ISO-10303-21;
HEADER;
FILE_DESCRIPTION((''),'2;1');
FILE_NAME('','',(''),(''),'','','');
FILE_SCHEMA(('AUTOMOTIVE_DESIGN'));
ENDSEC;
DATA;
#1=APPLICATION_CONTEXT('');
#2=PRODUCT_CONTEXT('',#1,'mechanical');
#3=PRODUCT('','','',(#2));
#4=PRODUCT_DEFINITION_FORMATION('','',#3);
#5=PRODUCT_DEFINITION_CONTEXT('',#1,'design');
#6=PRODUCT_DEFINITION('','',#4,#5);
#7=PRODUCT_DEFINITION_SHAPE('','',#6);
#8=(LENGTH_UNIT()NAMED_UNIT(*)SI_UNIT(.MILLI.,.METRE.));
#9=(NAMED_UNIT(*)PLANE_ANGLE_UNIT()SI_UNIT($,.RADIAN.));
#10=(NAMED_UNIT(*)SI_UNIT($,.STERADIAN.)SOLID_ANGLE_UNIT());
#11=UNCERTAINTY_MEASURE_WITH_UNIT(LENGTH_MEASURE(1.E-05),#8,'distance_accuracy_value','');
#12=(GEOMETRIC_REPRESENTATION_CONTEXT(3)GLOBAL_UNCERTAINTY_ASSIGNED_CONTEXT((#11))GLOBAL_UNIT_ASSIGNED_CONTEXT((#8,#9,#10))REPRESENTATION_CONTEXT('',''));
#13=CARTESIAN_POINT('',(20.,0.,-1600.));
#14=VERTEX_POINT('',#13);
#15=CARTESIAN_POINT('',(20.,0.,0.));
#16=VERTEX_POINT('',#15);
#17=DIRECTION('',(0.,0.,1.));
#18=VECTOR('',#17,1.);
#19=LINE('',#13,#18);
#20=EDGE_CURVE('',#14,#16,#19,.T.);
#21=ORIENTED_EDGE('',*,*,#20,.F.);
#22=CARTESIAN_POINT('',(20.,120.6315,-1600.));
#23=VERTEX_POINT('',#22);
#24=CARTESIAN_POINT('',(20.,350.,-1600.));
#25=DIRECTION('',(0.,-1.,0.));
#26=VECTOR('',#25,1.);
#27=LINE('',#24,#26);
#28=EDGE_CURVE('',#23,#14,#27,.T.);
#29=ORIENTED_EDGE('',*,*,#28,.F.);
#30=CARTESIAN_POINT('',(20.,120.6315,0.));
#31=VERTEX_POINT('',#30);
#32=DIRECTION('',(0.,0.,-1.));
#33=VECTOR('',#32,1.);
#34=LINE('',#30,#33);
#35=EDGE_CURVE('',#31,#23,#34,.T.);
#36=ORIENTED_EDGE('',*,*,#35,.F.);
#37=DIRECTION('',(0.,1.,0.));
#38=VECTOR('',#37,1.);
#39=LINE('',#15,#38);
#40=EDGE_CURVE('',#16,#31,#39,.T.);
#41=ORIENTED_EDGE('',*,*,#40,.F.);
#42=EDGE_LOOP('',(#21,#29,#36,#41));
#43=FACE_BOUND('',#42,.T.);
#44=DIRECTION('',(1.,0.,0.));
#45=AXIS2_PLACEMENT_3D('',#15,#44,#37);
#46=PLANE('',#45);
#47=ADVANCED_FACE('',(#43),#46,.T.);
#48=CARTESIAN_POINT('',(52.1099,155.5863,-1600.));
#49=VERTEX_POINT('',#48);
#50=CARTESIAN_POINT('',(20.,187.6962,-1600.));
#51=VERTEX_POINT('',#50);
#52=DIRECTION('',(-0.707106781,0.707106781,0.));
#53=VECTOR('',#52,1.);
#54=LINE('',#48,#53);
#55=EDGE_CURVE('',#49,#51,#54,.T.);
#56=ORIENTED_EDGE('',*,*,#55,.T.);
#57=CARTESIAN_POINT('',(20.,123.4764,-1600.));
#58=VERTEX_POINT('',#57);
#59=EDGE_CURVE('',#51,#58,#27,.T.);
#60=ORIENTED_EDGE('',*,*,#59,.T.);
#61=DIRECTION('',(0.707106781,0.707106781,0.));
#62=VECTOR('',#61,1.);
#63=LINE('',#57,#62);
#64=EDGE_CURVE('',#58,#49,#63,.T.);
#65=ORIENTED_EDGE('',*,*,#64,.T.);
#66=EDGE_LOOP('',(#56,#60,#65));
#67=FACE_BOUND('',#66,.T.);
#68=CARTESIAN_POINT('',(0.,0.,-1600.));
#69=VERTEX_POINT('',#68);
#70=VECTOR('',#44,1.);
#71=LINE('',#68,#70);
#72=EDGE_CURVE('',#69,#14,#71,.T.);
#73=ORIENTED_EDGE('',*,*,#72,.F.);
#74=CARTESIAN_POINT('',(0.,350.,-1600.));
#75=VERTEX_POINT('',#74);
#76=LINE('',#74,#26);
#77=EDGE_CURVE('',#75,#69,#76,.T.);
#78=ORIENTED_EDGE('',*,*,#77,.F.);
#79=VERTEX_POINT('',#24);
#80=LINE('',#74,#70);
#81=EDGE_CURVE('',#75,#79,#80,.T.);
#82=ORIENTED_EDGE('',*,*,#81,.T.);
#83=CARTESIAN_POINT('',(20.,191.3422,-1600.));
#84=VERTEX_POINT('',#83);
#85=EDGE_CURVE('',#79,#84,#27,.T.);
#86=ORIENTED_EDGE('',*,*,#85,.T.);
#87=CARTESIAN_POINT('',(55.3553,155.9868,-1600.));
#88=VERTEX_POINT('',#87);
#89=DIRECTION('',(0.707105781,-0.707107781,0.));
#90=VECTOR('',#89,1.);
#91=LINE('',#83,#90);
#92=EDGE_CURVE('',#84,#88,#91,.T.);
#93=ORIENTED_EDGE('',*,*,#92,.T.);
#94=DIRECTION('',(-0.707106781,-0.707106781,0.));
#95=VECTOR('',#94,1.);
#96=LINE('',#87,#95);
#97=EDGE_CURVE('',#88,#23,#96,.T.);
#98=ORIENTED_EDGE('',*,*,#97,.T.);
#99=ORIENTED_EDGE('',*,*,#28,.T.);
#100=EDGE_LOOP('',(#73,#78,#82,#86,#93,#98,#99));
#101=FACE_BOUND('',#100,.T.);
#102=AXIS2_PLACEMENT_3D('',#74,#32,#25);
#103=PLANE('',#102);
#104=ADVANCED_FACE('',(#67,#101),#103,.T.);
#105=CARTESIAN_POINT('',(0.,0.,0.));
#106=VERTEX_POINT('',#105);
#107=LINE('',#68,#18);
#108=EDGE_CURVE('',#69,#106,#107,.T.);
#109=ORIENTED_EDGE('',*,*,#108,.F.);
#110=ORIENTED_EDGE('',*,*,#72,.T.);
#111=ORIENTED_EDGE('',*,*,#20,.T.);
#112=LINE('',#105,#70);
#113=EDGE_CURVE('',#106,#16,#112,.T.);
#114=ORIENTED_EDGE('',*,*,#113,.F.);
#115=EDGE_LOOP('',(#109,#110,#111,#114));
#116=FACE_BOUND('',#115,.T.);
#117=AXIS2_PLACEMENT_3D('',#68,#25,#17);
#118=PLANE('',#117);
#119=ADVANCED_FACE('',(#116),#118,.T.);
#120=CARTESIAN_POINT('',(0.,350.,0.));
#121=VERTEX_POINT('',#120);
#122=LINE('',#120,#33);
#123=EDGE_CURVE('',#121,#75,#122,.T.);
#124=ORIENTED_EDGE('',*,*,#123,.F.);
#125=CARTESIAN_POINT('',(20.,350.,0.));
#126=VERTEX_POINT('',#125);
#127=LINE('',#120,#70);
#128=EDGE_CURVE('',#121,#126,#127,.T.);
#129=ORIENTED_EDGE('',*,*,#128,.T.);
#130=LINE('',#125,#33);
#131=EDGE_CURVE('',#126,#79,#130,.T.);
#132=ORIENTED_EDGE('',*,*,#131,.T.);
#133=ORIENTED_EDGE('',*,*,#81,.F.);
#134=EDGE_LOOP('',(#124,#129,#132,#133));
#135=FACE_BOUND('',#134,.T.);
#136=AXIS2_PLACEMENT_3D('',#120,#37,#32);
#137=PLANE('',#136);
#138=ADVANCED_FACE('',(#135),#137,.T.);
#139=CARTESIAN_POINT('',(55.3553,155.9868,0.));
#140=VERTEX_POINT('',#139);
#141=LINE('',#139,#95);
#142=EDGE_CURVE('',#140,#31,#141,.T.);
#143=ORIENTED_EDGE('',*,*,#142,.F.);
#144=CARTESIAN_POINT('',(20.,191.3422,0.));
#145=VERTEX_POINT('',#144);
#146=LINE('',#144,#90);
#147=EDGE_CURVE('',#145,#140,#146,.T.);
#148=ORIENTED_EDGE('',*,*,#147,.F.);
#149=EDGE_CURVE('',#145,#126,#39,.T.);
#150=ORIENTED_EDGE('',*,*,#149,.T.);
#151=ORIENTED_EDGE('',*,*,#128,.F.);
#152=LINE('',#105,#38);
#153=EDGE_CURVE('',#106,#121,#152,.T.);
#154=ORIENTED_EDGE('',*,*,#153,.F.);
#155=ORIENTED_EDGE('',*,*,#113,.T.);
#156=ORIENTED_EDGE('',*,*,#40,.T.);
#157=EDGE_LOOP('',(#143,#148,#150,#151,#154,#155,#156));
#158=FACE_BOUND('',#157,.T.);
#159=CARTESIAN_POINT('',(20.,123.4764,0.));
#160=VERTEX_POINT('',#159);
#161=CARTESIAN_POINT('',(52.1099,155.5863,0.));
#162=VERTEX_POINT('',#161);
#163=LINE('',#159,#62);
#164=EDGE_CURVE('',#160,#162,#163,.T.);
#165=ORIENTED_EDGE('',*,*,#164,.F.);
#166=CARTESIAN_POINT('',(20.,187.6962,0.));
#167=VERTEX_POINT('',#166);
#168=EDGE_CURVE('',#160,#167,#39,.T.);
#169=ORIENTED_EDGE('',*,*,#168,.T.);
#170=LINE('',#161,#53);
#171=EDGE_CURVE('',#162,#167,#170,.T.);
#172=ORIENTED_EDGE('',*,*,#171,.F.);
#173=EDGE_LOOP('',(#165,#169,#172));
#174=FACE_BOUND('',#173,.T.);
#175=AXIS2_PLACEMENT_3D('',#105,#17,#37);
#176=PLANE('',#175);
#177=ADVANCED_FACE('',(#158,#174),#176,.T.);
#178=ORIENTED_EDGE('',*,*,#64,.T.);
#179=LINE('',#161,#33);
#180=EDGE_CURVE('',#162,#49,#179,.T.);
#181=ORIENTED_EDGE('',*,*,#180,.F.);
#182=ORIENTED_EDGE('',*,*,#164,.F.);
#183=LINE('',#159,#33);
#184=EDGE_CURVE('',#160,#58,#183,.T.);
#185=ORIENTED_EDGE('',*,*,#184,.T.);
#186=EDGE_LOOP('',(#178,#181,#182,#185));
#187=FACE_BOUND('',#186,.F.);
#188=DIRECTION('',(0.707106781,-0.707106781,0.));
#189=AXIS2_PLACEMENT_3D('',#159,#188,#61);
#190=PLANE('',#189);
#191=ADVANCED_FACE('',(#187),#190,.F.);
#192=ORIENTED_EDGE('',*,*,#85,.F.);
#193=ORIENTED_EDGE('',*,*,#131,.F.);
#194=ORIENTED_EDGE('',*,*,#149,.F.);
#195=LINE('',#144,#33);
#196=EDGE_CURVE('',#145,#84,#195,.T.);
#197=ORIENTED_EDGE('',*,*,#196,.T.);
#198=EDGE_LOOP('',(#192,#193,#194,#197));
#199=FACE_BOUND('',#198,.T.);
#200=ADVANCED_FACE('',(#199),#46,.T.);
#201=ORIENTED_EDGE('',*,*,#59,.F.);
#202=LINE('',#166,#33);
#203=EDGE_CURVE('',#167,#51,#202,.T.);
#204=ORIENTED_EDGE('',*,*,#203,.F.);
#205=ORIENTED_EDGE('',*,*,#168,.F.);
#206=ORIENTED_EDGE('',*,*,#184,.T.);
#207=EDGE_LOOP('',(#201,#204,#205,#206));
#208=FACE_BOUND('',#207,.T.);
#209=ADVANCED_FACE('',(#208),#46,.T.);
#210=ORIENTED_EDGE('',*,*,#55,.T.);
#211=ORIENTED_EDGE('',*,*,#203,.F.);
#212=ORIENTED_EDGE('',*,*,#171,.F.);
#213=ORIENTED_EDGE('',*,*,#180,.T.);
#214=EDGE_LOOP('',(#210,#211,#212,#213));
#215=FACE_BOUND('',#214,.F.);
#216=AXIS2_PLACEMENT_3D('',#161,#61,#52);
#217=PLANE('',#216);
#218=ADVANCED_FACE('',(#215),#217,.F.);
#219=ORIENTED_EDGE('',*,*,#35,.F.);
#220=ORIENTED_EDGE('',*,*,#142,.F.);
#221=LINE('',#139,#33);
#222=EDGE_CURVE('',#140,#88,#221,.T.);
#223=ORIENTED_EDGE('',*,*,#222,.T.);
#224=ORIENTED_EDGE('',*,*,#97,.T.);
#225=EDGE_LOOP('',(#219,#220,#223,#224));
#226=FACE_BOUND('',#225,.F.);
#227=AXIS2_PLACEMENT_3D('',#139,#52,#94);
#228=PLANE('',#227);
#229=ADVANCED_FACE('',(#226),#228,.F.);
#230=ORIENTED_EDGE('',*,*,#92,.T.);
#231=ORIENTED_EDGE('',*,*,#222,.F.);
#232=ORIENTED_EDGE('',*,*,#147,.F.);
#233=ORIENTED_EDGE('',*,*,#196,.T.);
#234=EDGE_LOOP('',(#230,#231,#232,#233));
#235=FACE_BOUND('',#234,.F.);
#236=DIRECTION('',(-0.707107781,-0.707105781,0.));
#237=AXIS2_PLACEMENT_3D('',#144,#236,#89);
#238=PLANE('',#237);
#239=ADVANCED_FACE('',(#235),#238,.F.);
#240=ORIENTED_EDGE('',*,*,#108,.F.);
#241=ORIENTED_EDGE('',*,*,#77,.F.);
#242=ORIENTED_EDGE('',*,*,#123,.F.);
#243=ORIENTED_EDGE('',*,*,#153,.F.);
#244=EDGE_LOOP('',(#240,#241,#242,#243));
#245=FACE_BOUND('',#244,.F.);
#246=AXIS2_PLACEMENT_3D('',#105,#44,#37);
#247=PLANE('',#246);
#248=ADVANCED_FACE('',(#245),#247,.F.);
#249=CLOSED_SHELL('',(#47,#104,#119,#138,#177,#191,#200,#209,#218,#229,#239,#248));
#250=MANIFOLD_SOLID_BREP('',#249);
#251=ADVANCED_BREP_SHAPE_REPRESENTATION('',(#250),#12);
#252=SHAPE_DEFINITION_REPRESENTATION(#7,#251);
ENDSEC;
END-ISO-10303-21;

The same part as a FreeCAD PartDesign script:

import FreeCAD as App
import Part
import Sketcher


def add_polygon(sketch, points):
    """Adds a closed chain of lines whose ends are joined by coincident constraints."""
    first, n = sketch.GeometryCount, len(points)
    for a, b in zip(points, points[1:] + points[:1]):
        sketch.addGeometry(Part.LineSegment(App.Vector(*a, 0), App.Vector(*b, 0)), False)
    for i in range(n):
        sketch.addConstraint(Sketcher.Constraint("Coincident", first + i, 2, first + (i + 1) % n, 1))

doc = App.newDocument("Part")
params = doc.addObject("Spreadsheet::Sheet", "Params")
for row, (alias, value) in enumerate([
    ("sketch1_width", "350 mm"),
    ("sketch1_height", "1600 mm"),
    ("pad1_length", "20 mm"),
    ("sketch2_length", "50 mm"),
    ("pad2_length", "1600 mm"),
], start=1):
    params.set(f"A{row}", alias)
    params.set(f"B{row}", "=" + value)
    params.setAlias(f"B{row}", alias)

body = doc.addObject("PartDesign::Body", "Body")

sketch1 = body.newObject("Sketcher::SketchObject", "Sketch")
sketch1.AttachmentSupport = (doc.getObject("YZ_Plane"), [""])
sketch1.MapMode = "FlatFace"
add_polygon(sketch1, [(350, 0), (0, 0), (0, -1600), (350, -1600)])
sketch1.addConstraint([
    Sketcher.Constraint("Horizontal", 0),
    Sketcher.Constraint("Vertical", 1),
    Sketcher.Constraint("Horizontal", 2),
    Sketcher.Constraint("Vertical", 3),
    Sketcher.Constraint("Coincident", 0, 2, -1, 1),
    Sketcher.Constraint("DistanceX", 0, 2, 0, 1, 350.0),
    Sketcher.Constraint("DistanceY", 1, 2, 1, 1, 1600.0),
])
sketch1.setExpression("Constraints[9]", "Params.sketch1_width")
sketch1.setExpression("Constraints[10]", "Params.sketch1_height")
pad1 = body.newObject("PartDesign::Pad", "Pad")
pad1.Profile = sketch1
pad1.setExpression("Length", "Params.pad1_length")

sketch2 = body.newObject("Sketcher::SketchObject", "Sketch001")
sketch2.AttachmentSupport = (doc.getObject("XY_Plane"), [""])
sketch2.MapMode = "FlatFace"
add_polygon(sketch2, [(20, 123.5), (20, 120.6), (55.4, 156), (20, 191.3), (20, 187.7), (52.1, 155.6)])
sketch2.addConstraint([
    Sketcher.Constraint("Vertical", 0),
    Sketcher.Constraint("Vertical", 3),
    Sketcher.Constraint("Perpendicular", 1, 2),
    Sketcher.Constraint("Parallel", 2, 4),
    Sketcher.Constraint("Perpendicular", 4, 5),
    Sketcher.Constraint("Vertical", 0, 2, 2, 2),
    Sketcher.Constraint("Equal", 1, 2),
    Sketcher.Constraint("Distance", 1, 50.0),
    Sketcher.Constraint("DistanceX", -1, 1, 0, 2, 20.0),
    Sketcher.Constraint("DistanceY", 0, 2, 0, 1, 2.845),
    Sketcher.Constraint("DistanceY", 3, 2, 3, 1, 3.646),
    Sketcher.Constraint("DistanceY", -1, 1, 0, 2, 120.6315),
])
sketch2.setExpression("Constraints[13]", "Params.sketch2_length")
pad2 = body.newObject("PartDesign::Pad", "Pad001")
pad2.Profile = sketch2
pad2.setExpression("Length", "Params.pad2_length")
pad2.Reversed = True

doc.recompute()
